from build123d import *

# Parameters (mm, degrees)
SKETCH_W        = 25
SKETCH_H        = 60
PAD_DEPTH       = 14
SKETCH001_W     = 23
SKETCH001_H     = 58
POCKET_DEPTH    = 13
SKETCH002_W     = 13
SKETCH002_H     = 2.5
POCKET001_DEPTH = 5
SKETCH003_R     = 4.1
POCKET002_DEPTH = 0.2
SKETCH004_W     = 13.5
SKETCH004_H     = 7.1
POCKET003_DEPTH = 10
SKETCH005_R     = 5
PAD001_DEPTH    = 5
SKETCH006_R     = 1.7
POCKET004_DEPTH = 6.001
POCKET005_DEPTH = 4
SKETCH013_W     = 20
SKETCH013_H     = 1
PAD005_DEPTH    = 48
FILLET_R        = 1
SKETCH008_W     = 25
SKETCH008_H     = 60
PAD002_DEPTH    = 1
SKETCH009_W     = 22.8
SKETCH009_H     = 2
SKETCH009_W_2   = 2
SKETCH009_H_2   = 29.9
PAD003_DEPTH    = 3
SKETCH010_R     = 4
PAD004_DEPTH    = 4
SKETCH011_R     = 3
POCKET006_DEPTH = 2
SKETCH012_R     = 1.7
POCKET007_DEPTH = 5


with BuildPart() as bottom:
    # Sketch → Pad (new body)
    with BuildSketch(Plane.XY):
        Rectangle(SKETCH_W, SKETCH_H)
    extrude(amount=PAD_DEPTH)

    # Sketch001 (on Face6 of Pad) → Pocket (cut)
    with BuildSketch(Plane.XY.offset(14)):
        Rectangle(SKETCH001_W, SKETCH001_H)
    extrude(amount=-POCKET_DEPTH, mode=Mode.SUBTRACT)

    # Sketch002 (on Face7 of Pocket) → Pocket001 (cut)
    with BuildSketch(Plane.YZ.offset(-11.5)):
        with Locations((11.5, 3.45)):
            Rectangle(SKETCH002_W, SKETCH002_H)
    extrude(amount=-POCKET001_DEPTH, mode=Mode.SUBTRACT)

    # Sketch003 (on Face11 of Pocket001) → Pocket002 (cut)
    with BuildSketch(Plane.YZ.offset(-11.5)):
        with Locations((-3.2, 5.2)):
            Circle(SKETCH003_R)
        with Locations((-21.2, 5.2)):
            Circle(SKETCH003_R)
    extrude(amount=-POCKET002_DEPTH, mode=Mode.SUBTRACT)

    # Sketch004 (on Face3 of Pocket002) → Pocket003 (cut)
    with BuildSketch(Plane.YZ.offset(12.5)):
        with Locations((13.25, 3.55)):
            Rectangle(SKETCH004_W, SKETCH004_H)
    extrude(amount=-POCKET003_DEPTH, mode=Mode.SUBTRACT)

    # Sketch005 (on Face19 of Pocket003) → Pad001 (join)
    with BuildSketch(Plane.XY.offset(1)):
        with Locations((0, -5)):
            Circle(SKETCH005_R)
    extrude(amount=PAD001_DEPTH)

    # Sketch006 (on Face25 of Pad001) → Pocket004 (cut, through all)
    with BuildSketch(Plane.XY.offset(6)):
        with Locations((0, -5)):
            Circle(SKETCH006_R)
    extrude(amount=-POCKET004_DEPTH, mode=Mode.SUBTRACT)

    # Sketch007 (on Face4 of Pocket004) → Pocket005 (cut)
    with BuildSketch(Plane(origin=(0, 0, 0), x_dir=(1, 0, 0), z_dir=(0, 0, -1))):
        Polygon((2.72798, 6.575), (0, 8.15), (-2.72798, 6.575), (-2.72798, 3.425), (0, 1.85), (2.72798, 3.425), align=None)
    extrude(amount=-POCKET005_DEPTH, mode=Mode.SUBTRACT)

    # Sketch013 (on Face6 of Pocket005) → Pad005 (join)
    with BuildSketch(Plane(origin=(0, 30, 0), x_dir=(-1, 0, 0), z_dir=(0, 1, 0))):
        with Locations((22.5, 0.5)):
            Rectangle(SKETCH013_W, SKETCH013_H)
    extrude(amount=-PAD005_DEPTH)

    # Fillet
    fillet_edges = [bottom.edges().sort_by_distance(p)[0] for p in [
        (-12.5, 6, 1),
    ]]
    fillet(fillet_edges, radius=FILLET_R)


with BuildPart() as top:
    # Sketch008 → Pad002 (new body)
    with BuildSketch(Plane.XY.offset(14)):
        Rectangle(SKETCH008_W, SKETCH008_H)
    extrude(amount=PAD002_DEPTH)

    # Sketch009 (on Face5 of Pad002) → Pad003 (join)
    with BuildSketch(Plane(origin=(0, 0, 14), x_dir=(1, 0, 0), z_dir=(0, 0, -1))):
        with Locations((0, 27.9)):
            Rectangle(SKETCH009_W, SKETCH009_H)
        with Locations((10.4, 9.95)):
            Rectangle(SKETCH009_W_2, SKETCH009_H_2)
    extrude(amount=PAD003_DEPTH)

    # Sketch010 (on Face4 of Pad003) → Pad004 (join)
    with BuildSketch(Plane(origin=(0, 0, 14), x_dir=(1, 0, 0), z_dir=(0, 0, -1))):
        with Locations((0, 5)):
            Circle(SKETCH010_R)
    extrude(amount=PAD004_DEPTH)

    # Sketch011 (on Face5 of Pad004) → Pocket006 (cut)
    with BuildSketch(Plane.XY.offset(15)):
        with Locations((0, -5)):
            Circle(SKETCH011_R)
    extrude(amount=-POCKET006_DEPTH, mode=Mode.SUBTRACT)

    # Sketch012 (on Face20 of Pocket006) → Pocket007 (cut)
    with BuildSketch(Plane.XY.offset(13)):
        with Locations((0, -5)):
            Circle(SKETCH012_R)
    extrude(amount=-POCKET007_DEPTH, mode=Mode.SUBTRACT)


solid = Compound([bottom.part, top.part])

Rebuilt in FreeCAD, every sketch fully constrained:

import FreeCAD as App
import Part
import Sketcher
from FreeCAD import Vector
Q = App.Units.Quantity


def edges_at(feature, points):
    """Names of the edges that pass closest to the given points."""
    edges = feature.Shape.Edges
    near = lambda p: min(range(len(edges)), key=lambda i: edges[i].distToShape(Part.Vertex(*p))[0])
    return sorted({f"Edge{near(p) + 1}" for p in points})

doc = App.newDocument("Part")
body = doc.addObject("PartDesign::Body", "Body")

# Sketch on XY plane
sketch1 = body.newObject("Sketcher::SketchObject", "Sketch")
sketch1.AttachmentSupport = (doc.getObject("XY_Plane"), [""])
sketch1.MapMode = "FlatFace"
sketch1.addGeometry([
    Part.LineSegment(Vector(-12, 30, 0), Vector(-12, -30, 0)),
    Part.LineSegment(Vector(-12, -30, 0), Vector(12, -30, 0)),
    Part.LineSegment(Vector(12, -30, 0), Vector(12, 30, 0)),
    Part.LineSegment(Vector(12, 30, 0), Vector(-12, 30, 0)),
], False)
sketch1.addConstraint([
    Sketcher.Constraint("Coincident", 0, 2, 1, 1),
    Sketcher.Constraint("Coincident", 1, 2, 2, 1),
    Sketcher.Constraint("Coincident", 2, 2, 3, 1),
    Sketcher.Constraint("Coincident", 3, 2, 0, 1),
    Sketcher.Constraint("Vertical", 0),
    Sketcher.Constraint("Horizontal", 1),
    Sketcher.Constraint("Vertical", 2),
    Sketcher.Constraint("Horizontal", 3),
    Sketcher.Constraint("Symmetric", 0, 2, 2, 2, -1, 1),
    Sketcher.Constraint("DistanceX", 1, 1, 1, 2, Q("25 mm")),
    Sketcher.Constraint("DistanceY", 0, 2, 0, 1, Q("60 mm")),
])
pad1 = body.newObject("PartDesign::Pad", "Pad")
pad1.Profile = sketch1
pad1.Length = 14

# Sketch on XY plane
sketch2 = body.newObject("Sketcher::SketchObject", "Sketch001")
sketch2.AttachmentSupport = (doc.getObject("XY_Plane"), [""])
sketch2.MapMode = "FlatFace"
sketch2.AttachmentOffset = App.Placement(Vector(0, 0, 14), App.Rotation())
sketch2.addGeometry([
    Part.LineSegment(Vector(-12, 29, 0), Vector(-12, -29, 0)),
    Part.LineSegment(Vector(-12, -29, 0), Vector(12, -29, 0)),
    Part.LineSegment(Vector(12, -29, 0), Vector(12, 29, 0)),
    Part.LineSegment(Vector(12, 29, 0), Vector(-12, 29, 0)),
], False)
sketch2.addConstraint([
    Sketcher.Constraint("Coincident", 0, 2, 1, 1),
    Sketcher.Constraint("Coincident", 1, 2, 2, 1),
    Sketcher.Constraint("Coincident", 2, 2, 3, 1),
    Sketcher.Constraint("Coincident", 3, 2, 0, 1),
    Sketcher.Constraint("Vertical", 0),
    Sketcher.Constraint("Horizontal", 1),
    Sketcher.Constraint("Vertical", 2),
    Sketcher.Constraint("Horizontal", 3),
    Sketcher.Constraint("Symmetric", 0, 2, 2, 2, -1, 1),
    Sketcher.Constraint("DistanceX", 1, 1, 1, 2, Q("23 mm")),
    Sketcher.Constraint("DistanceY", 0, 2, 0, 1, Q("58 mm")),
])
pocket1 = body.newObject("PartDesign::Pocket", "Pocket")
pocket1.Profile = sketch2
pocket1.Length = 13

# Sketch on YZ plane
sketch3 = body.newObject("Sketcher::SketchObject", "Sketch002")
sketch3.AttachmentSupport = (doc.getObject("YZ_Plane"), [""])
sketch3.MapMode = "FlatFace"
sketch3.AttachmentOffset = App.Placement(Vector(0, 0, -11.5), App.Rotation())
sketch3.addGeometry([
    Part.LineSegment(Vector(5, 4.7, 0), Vector(5, 2.2, 0)),
    Part.LineSegment(Vector(5, 2.2, 0), Vector(18, 2.2, 0)),
    Part.LineSegment(Vector(18, 2.2, 0), Vector(18, 4.7, 0)),
    Part.LineSegment(Vector(18, 4.7, 0), Vector(5, 4.7, 0)),
], False)
sketch3.addConstraint([
    Sketcher.Constraint("Coincident", 0, 2, 1, 1),
    Sketcher.Constraint("Coincident", 1, 2, 2, 1),
    Sketcher.Constraint("Coincident", 2, 2, 3, 1),
    Sketcher.Constraint("Coincident", 3, 2, 0, 1),
    Sketcher.Constraint("Vertical", 0),
    Sketcher.Constraint("Horizontal", 1),
    Sketcher.Constraint("Vertical", 2),
    Sketcher.Constraint("Horizontal", 3),
    Sketcher.Constraint("DistanceX", 1, 1, 1, 2, Q("13 mm")),
    Sketcher.Constraint("DistanceY", 0, 2, 0, 1, Q("2.5 mm")),
    Sketcher.Constraint("DistanceX", -1, 1, 0, 2, Q("5 mm")),
    Sketcher.Constraint("DistanceY", -1, 1, 0, 2, Q("2.2 mm")),
])
pocket2 = body.newObject("PartDesign::Pocket", "Pocket001")
pocket2.Profile = sketch3
pocket2.Length = 5

# Sketch on YZ plane
sketch4 = body.newObject("Sketcher::SketchObject", "Sketch003")
sketch4.AttachmentSupport = (doc.getObject("YZ_Plane"), [""])
sketch4.MapMode = "FlatFace"
sketch4.AttachmentOffset = App.Placement(Vector(0, 0, -11.5), App.Rotation())
sketch4.addGeometry([
    Part.Circle(Vector(-3.2, 5.2, 0), Vector(0, 0, 1), 4.1),
    Part.Circle(Vector(-21.2, 5.2, 0), Vector(0, 0, 1), 4.1),
], False)
sketch4.addConstraint([
    Sketcher.Constraint("Equal", 0, 1),
    Sketcher.Constraint("Horizontal", 0, 3, 1, 3),
    Sketcher.Constraint("Diameter", 0, Q("8.2 mm")),
    Sketcher.Constraint("DistanceX", 1, 3, 0, 3, Q("18 mm")),
    Sketcher.Constraint("DistanceX", 0, 3, -1, 1, Q("3.2 mm")),
    Sketcher.Constraint("DistanceY", -1, 1, 0, 3, Q("5.2 mm")),
])
pocket3 = body.newObject("PartDesign::Pocket", "Pocket002")
pocket3.Profile = sketch4
pocket3.Length = 0.2

# Sketch on YZ plane
sketch5 = body.newObject("Sketcher::SketchObject", "Sketch004")
sketch5.AttachmentSupport = (doc.getObject("YZ_Plane"), [""])
sketch5.MapMode = "FlatFace"
sketch5.AttachmentOffset = App.Placement(Vector(0, 0, 12.5), App.Rotation())
sketch5.addGeometry([
    Part.LineSegment(Vector(6, 7, 0), Vector(6, 0, 0)),
    Part.LineSegment(Vector(6, 0, 0), Vector(20, 0, 0)),
    Part.LineSegment(Vector(20, 0, 0), Vector(20, 7, 0)),
    Part.LineSegment(Vector(20, 7, 0), Vector(6, 7, 0)),
], False)
sketch5.addConstraint([
    Sketcher.Constraint("Coincident", 0, 2, 1, 1),
    Sketcher.Constraint("Coincident", 1, 2, 2, 1),
    Sketcher.Constraint("Coincident", 2, 2, 3, 1),
    Sketcher.Constraint("Coincident", 3, 2, 0, 1),
    Sketcher.Constraint("Vertical", 0),
    Sketcher.Constraint("Horizontal", 1),
    Sketcher.Constraint("Vertical", 2),
    Sketcher.Constraint("Horizontal", 3),
    Sketcher.Constraint("PointOnObject", 0, 2, -1),
    Sketcher.Constraint("DistanceX", 1, 1, 1, 2, Q("13.5 mm")),
    Sketcher.Constraint("DistanceY", 0, 2, 0, 1, Q("7.1 mm")),
    Sketcher.Constraint("DistanceX", -1, 1, 1, 2, Q("20 mm")),
])
pocket4 = body.newObject("PartDesign::Pocket", "Pocket003")
pocket4.Profile = sketch5
pocket4.Length = 10

# Sketch on XY plane
sketch6 = body.newObject("Sketcher::SketchObject", "Sketch005")
sketch6.AttachmentSupport = (doc.getObject("XY_Plane"), [""])
sketch6.MapMode = "FlatFace"
sketch6.AttachmentOffset = App.Placement(Vector(0, 0, 1), App.Rotation())
sketch6.addGeometry(Part.Circle(Vector(0, -5, 0), Vector(0, 0, 1), 5), False)
sketch6.addConstraint([
    Sketcher.Constraint("PointOnObject", 0, 3, -2),
    Sketcher.Constraint("Diameter", 0, Q("10 mm")),
    Sketcher.Constraint("DistanceY", 0, 3, -1, 1, Q("5 mm")),
])
pad2 = body.newObject("PartDesign::Pad", "Pad001")
pad2.Profile = sketch6
pad2.Length = 5

# Sketch on XY plane
sketch7 = body.newObject("Sketcher::SketchObject", "Sketch006")
sketch7.AttachmentSupport = (doc.getObject("XY_Plane"), [""])
sketch7.MapMode = "FlatFace"
sketch7.AttachmentOffset = App.Placement(Vector(0, 0, 6), App.Rotation())
sketch7.addGeometry(Part.Circle(Vector(0, -5, 0), Vector(0, 0, 1), 1.7), False)
sketch7.addConstraint([
    Sketcher.Constraint("PointOnObject", 0, 3, -2),
    Sketcher.Constraint("Diameter", 0, Q("3.4 mm")),
    Sketcher.Constraint("DistanceY", 0, 3, -1, 1, Q("5 mm")),
])
pocket5 = body.newObject("PartDesign::Pocket", "Pocket004")
pocket5.Profile = sketch7
pocket5.Type = "ThroughAll"

# Sketch on XY plane
sketch8 = body.newObject("Sketcher::SketchObject", "Sketch007")
sketch8.AttachmentSupport = (doc.getObject("XY_Plane"), [""])
sketch8.MapMode = "FlatFace"
sketch8.addGeometry([
    Part.LineSegment(Vector(2.7, -6.6, 0), Vector(0, -8.2, 0)),  # 0
    Part.LineSegment(Vector(0, -8.2, 0), Vector(-2.7, -6.6, 0)),  # 1
    Part.LineSegment(Vector(-2.7, -6.6, 0), Vector(-2.7, -3.4, 0)),  # 2
    Part.LineSegment(Vector(-2.7, -3.4, 0), Vector(0, -1.9, 0)),  # 3
    Part.LineSegment(Vector(0, -1.9, 0), Vector(2.7, -3.4, 0)),  # 4
    Part.LineSegment(Vector(2.7, -3.4, 0), Vector(2.7, -6.6, 0)),  # 5
], False)
sketch8.addConstraint([
    Sketcher.Constraint("Coincident", 0, 2, 1, 1),
    Sketcher.Constraint("Coincident", 1, 2, 2, 1),
    Sketcher.Constraint("Coincident", 2, 2, 3, 1),
    Sketcher.Constraint("Coincident", 3, 2, 4, 1),
    Sketcher.Constraint("Coincident", 4, 2, 5, 1),
    Sketcher.Constraint("Coincident", 5, 2, 0, 1),
    Sketcher.Constraint("Vertical", 2),
    Sketcher.Constraint("Vertical", 5),
    Sketcher.Constraint("Symmetric", 2, 2, 4, 2, -2),
    Sketcher.Constraint("PointOnObject", 0, 2, -2),
    Sketcher.Constraint("PointOnObject", 3, 2, -2),
    Sketcher.Constraint("Parallel", 0, 3),
    Sketcher.Constraint("Parallel", 1, 4),
    Sketcher.Constraint("Angle", 0, Q("-150 deg")),
    Sketcher.Constraint("DistanceY", 2, 1, 2, 2, Q("3.15 mm")),
    Sketcher.Constraint("DistanceY", 0, 2, 3, 2, Q("6.3 mm")),
    Sketcher.Constraint("DistanceY", 0, 2, -1, 1, Q("8.15 mm")),
])
pocket6 = body.newObject("PartDesign::Pocket", "Pocket005")
pocket6.Profile = sketch8
pocket6.Length = 4
pocket6.Reversed = True

# Sketch on XZ plane
sketch9 = body.newObject("Sketcher::SketchObject", "Sketch008")
sketch9.AttachmentSupport = (doc.getObject("XZ_Plane"), [""])
sketch9.MapMode = "FlatFace"
sketch9.AttachmentOffset = App.Placement(Vector(0, 0, -30), App.Rotation())
sketch9.addGeometry([
    Part.LineSegment(Vector(-12.5, 1, 0), Vector(-12.5, 0, 0)),
    Part.LineSegment(Vector(-12.5, 0, 0), Vector(-32.5, 0, 0)),
    Part.LineSegment(Vector(-32.5, 0, 0), Vector(-32.5, 1, 0)),
    Part.LineSegment(Vector(-32.5, 1, 0), Vector(-12.5, 1, 0)),
], False)
sketch9.addConstraint([
    Sketcher.Constraint("Coincident", 0, 2, 1, 1),
    Sketcher.Constraint("Coincident", 1, 2, 2, 1),
    Sketcher.Constraint("Coincident", 2, 2, 3, 1),
    Sketcher.Constraint("Coincident", 3, 2, 0, 1),
    Sketcher.Constraint("Vertical", 0),
    Sketcher.Constraint("Horizontal", 1),
    Sketcher.Constraint("Vertical", 2),
    Sketcher.Constraint("Horizontal", 3),
    Sketcher.Constraint("PointOnObject", 0, 2, -1),
    Sketcher.Constraint("DistanceX", 1, 2, 1, 1, Q("20 mm")),
    Sketcher.Constraint("DistanceY", 0, 2, 0, 1, Q("1 mm")),
    Sketcher.Constraint("DistanceX", 0, 2, -1, 1, Q("12.5 mm")),
])
pad3 = body.newObject("PartDesign::Pad", "Pad002")
pad3.Profile = sketch9
pad3.Length = 48
doc.recompute()

fillet = body.newObject("PartDesign::Fillet", "Fillet")
fillet.Base = (pad3, edges_at(pad3, [(-12.5, 6, 1)]))
fillet.Radius = 1
body2 = doc.addObject("PartDesign::Body", "Body001")

# Sketch on XY plane
sketch10 = body2.newObject("Sketcher::SketchObject", "Sketch009")
sketch10.AttachmentSupport = (doc.getObject("XY_Plane001"), [""])
sketch10.MapMode = "FlatFace"
sketch10.AttachmentOffset = App.Placement(Vector(0, 0, 14), App.Rotation())
sketch10.addGeometry([
    Part.LineSegment(Vector(-12, 30, 0), Vector(-12, -30, 0)),
    Part.LineSegment(Vector(-12, -30, 0), Vector(12, -30, 0)),
    Part.LineSegment(Vector(12, -30, 0), Vector(12, 30, 0)),
    Part.LineSegment(Vector(12, 30, 0), Vector(-12, 30, 0)),
], False)
sketch10.addConstraint([
    Sketcher.Constraint("Coincident", 0, 2, 1, 1),
    Sketcher.Constraint("Coincident", 1, 2, 2, 1),
    Sketcher.Constraint("Coincident", 2, 2, 3, 1),
    Sketcher.Constraint("Coincident", 3, 2, 0, 1),
    Sketcher.Constraint("Vertical", 0),
    Sketcher.Constraint("Horizontal", 1),
    Sketcher.Constraint("Vertical", 2),
    Sketcher.Constraint("Horizontal", 3),
    Sketcher.Constraint("Symmetric", 0, 2, 2, 2, -1, 1),
    Sketcher.Constraint("DistanceX", 1, 1, 1, 2, Q("25 mm")),
    Sketcher.Constraint("DistanceY", 0, 2, 0, 1, Q("60 mm")),
])
pad4 = body2.newObject("PartDesign::Pad", "Pad003")
pad4.Profile = sketch10
pad4.Length = 1

# Sketch on XY plane
sketch11 = body2.newObject("Sketcher::SketchObject", "Sketch010")
sketch11.AttachmentSupport = (doc.getObject("XY_Plane001"), [""])
sketch11.MapMode = "FlatFace"
sketch11.AttachmentOffset = App.Placement(Vector(0, 0, 14), App.Rotation())
sketch11.addGeometry([
    Part.LineSegment(Vector(-11.4, -28.9, 0), Vector(-11.4, -26.9, 0)),  # 0
    Part.LineSegment(Vector(-11.4, -26.9, 0), Vector(11.4, -26.9, 0)),  # 1
    Part.LineSegment(Vector(11.4, -26.9, 0), Vector(11.4, -28.9, 0)),  # 2
    Part.LineSegment(Vector(11.4, -28.9, 0), Vector(-11.4, -28.9, 0)),  # 3
    Part.LineSegment(Vector(9.4, -24.9, 0), Vector(9.4, 5, 0)),  # 4
    Part.LineSegment(Vector(9.4, 5, 0), Vector(11.4, 5, 0)),  # 5
    Part.LineSegment(Vector(11.4, 5, 0), Vector(11.4, -24.9, 0)),  # 6
    Part.LineSegment(Vector(11.4, -24.9, 0), Vector(9.4, -24.9, 0)),  # 7
], False)
sketch11.addConstraint([
    Sketcher.Constraint("Coincident", 0, 2, 1, 1),
    Sketcher.Constraint("Coincident", 1, 2, 2, 1),
    Sketcher.Constraint("Coincident", 2, 2, 3, 1),
    Sketcher.Constraint("Coincident", 3, 2, 0, 1),
    Sketcher.Constraint("Coincident", 4, 2, 5, 1),
    Sketcher.Constraint("Coincident", 5, 2, 6, 1),
    Sketcher.Constraint("Coincident", 6, 2, 7, 1),
    Sketcher.Constraint("Coincident", 7, 2, 4, 1),
    Sketcher.Constraint("Vertical", 0),
    Sketcher.Constraint("Horizontal", 1),
    Sketcher.Constraint("Vertical", 2),
    Sketcher.Constraint("Horizontal", 3),
    Sketcher.Constraint("Vertical", 4),
    Sketcher.Constraint("Horizontal", 5),
    Sketcher.Constraint("Vertical", 6),
    Sketcher.Constraint("Horizontal", 7),
    Sketcher.Constraint("Vertical", 2, 2, 5, 2),
    Sketcher.Constraint("Equal", 7, 0),
    Sketcher.Constraint("DistanceX", 5, 1, 5, 2, Q("2 mm")),
    Sketcher.Constraint("DistanceX", 1, 1, 1, 2, Q("22.8 mm")),
    Sketcher.Constraint("DistanceY", 4, 1, 4, 2, Q("29.9 mm")),
    Sketcher.Constraint("DistanceY", -1, 1, 4, 2, Q("5 mm")),
    Sketcher.Constraint("DistanceY", 1, 2, 6, 2, Q("2 mm")),
    Sketcher.Constraint("DistanceX", 0, 2, -1, 1, Q("11.4 mm")),
])
pad5 = body2.newObject("PartDesign::Pad", "Pad004")
pad5.Profile = sketch11
pad5.Length = 3
pad5.Reversed = True

# Sketch on XY plane
sketch12 = body2.newObject("Sketcher::SketchObject", "Sketch011")
sketch12.AttachmentSupport = (doc.getObject("XY_Plane001"), [""])
sketch12.MapMode = "FlatFace"
sketch12.AttachmentOffset = App.Placement(Vector(0, 0, 14), App.Rotation())
sketch12.addGeometry(Part.Circle(Vector(0, -5, 0), Vector(0, 0, 1), 4), False)
sketch12.addConstraint([
    Sketcher.Constraint("PointOnObject", 0, 3, -2),
    Sketcher.Constraint("Diameter", 0, Q("8 mm")),
    Sketcher.Constraint("DistanceY", 0, 3, -1, 1, Q("5 mm")),
])
pad6 = body2.newObject("PartDesign::Pad", "Pad005")
pad6.Profile = sketch12
pad6.Length = 4
pad6.Reversed = True

# Sketch on XY plane
sketch13 = body2.newObject("Sketcher::SketchObject", "Sketch012")
sketch13.AttachmentSupport = (doc.getObject("XY_Plane001"), [""])
sketch13.MapMode = "FlatFace"
sketch13.AttachmentOffset = App.Placement(Vector(0, 0, 15), App.Rotation())
sketch13.addGeometry(Part.Circle(Vector(0, -5, 0), Vector(0, 0, 1), 3), False)
sketch13.addConstraint([
    Sketcher.Constraint("PointOnObject", 0, 3, -2),
    Sketcher.Constraint("Diameter", 0, Q("6 mm")),
    Sketcher.Constraint("DistanceY", 0, 3, -1, 1, Q("5 mm")),
])
pocket7 = body2.newObject("PartDesign::Pocket", "Pocket006")
pocket7.Profile = sketch13
pocket7.Length = 2

# Sketch on XY plane
sketch14 = body2.newObject("Sketcher::SketchObject", "Sketch013")
sketch14.AttachmentSupport = (doc.getObject("XY_Plane001"), [""])
sketch14.MapMode = "FlatFace"
sketch14.AttachmentOffset = App.Placement(Vector(0, 0, 13), App.Rotation())
sketch14.addGeometry(Part.Circle(Vector(0, -5, 0), Vector(0, 0, 1), 1.7), False)
sketch14.addConstraint([
    Sketcher.Constraint("PointOnObject", 0, 3, -2),
    Sketcher.Constraint("Diameter", 0, Q("3.4 mm")),
    Sketcher.Constraint("DistanceY", 0, 3, -1, 1, Q("5 mm")),
])
pocket8 = body2.newObject("PartDesign::Pocket", "Pocket007")
pocket8.Profile = sketch14
pocket8.Length = 5

doc.recompute()
